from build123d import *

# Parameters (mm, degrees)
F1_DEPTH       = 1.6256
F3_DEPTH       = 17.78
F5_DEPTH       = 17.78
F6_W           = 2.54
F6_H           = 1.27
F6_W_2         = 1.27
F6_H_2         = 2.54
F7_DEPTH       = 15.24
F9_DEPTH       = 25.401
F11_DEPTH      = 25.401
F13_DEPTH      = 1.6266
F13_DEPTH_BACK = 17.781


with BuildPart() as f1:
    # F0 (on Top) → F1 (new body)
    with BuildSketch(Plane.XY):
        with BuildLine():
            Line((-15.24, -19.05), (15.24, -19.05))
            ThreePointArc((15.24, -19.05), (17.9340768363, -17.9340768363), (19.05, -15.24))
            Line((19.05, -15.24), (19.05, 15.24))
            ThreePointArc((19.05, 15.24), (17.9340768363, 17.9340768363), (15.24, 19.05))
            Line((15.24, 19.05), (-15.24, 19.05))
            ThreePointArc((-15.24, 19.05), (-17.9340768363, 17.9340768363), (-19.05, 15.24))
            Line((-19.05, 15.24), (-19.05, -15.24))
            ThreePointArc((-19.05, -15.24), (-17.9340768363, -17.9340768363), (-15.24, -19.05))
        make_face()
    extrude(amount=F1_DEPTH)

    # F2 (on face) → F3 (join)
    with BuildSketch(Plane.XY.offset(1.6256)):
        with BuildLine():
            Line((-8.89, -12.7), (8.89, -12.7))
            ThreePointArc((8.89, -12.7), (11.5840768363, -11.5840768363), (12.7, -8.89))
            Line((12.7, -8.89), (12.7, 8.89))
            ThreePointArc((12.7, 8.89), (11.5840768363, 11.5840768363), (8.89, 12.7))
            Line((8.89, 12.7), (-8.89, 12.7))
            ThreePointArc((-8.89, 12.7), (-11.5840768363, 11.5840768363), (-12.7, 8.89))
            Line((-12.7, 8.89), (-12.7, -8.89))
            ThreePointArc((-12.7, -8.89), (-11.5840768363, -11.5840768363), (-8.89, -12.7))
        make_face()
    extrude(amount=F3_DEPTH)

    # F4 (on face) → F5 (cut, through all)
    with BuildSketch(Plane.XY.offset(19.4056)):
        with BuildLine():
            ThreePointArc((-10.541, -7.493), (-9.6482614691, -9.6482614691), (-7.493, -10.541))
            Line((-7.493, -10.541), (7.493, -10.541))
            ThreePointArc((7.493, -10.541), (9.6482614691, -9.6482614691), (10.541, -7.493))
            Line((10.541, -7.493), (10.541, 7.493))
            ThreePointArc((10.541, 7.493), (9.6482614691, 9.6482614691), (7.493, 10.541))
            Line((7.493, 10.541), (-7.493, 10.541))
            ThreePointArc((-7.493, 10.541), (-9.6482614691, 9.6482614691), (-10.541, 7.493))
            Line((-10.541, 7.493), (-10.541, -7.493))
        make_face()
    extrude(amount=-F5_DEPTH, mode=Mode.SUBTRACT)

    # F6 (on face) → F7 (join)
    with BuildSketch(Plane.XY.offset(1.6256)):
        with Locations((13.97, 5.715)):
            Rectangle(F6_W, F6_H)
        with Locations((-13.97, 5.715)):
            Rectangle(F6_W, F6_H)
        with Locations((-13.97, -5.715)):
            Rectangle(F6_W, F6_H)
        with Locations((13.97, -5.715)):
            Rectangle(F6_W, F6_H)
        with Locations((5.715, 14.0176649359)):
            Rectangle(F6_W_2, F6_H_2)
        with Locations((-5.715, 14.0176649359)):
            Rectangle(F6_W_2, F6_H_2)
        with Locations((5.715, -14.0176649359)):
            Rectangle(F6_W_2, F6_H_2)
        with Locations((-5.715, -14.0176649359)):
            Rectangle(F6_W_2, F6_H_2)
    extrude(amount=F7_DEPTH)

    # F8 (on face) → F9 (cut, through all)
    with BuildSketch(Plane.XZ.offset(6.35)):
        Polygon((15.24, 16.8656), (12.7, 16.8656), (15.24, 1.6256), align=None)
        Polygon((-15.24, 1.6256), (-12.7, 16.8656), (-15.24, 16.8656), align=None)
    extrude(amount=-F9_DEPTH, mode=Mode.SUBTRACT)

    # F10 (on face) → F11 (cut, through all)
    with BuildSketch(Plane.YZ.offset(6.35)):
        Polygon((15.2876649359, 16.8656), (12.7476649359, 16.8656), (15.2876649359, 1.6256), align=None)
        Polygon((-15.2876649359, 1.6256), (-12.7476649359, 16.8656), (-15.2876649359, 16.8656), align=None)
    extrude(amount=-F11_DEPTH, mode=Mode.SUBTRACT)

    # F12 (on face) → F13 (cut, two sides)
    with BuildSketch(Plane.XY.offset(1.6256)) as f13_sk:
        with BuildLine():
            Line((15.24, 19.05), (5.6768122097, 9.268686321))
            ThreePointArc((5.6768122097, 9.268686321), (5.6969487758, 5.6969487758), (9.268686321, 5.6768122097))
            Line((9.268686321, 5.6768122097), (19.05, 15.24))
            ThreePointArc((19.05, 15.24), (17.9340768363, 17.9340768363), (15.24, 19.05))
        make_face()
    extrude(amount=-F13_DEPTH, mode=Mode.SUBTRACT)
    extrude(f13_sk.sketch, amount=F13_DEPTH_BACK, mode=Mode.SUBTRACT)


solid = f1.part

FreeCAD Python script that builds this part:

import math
import FreeCAD as App
import Part
import Sketcher

V = App.Vector
Q = App.Units.Quantity

doc = App.newDocument("Part")
body = doc.addObject("PartDesign::Body", "Body")

# Sketch on XY plane
sketch1 = doc.addObject("Sketcher::SketchObject", "Sketch")
body.addObject(sketch1)
sketch1.AttachmentSupport = (doc.XY_Plane, [""])
sketch1.MapMode = "FlatFace"
sketch1.addGeometry([
    Part.LineSegment(V(-15.2, -19.1, 0), V(15.2, -19.1, 0)),  # 0
    Part.ArcOfCircle(Part.Circle(V(15.2, -15.2, 0), V(0, 0, 1), 3.8), math.radians(-90), math.radians(0)),  # 1
    Part.LineSegment(V(19.1, -15.2, 0), V(19.1, 15.2, 0)),  # 2
    Part.ArcOfCircle(Part.Circle(V(15.2, 15.2, 0), V(0, 0, 1), 3.8), math.radians(0), math.radians(90)),  # 3
    Part.LineSegment(V(15.2, 19.1, 0), V(-15.2, 19.1, 0)),  # 4
    Part.ArcOfCircle(Part.Circle(V(-15.2, 15.2, 0), V(0, 0, 1), 3.8), math.radians(90), math.radians(180)),  # 5
    Part.LineSegment(V(-19.1, 15.2, 0), V(-19.1, -15.2, 0)),  # 6
    Part.ArcOfCircle(Part.Circle(V(-15.2, -15.2, 0), V(0, 0, 1), 3.8), math.radians(180), math.radians(270)),  # 7
], False)
sketch1.addConstraint([
    Sketcher.Constraint("Tangent", 0, 2, 1, 1),
    Sketcher.Constraint("Tangent", 1, 2, 2, 1),
    Sketcher.Constraint("Tangent", 2, 2, 3, 1),
    Sketcher.Constraint("Tangent", 3, 2, 4, 1),
    Sketcher.Constraint("Tangent", 4, 2, 5, 1),
    Sketcher.Constraint("Tangent", 5, 2, 6, 1),
    Sketcher.Constraint("Tangent", 6, 2, 7, 1),
    Sketcher.Constraint("Tangent", 7, 2, 0, 1),
    Sketcher.Constraint("Horizontal", 0),
    Sketcher.Constraint("Vertical", 2),
    Sketcher.Constraint("Horizontal", 4),
    Sketcher.Constraint("Vertical", 6),
    Sketcher.Constraint("Equal", 1, 3),
    Sketcher.Constraint("Equal", 3, 5),
    Sketcher.Constraint("Equal", 5, 7),
    Sketcher.Constraint("Symmetric", 1, 3, 5, 3, -1, 1),
    Sketcher.Constraint("Equal", 4, 2),
    Sketcher.Constraint("Radius", 1, Q("0.15 in")),
    Sketcher.Constraint("DistanceX", 0, 1, 0, 2, Q("1.2 in")),
])
pad1 = doc.addObject("PartDesign::Pad", "Pad")
body.addObject(pad1)
pad1.Profile = sketch1
pad1.Length = Q("0.064 in")

# Sketch on XY plane
sketch2 = doc.addObject("Sketcher::SketchObject", "Sketch001")
body.addObject(sketch2)
sketch2.AttachmentSupport = (doc.XY_Plane, [""])
sketch2.MapMode = "FlatFace"
sketch2.AttachmentOffset = App.Placement(V(0, 0, 0.064 * 25.4), App.Rotation())
sketch2.addGeometry([
    Part.LineSegment(V(-8.9, -12.7, 0), V(8.9, -12.7, 0)),  # 0
    Part.ArcOfCircle(Part.Circle(V(8.9, -8.9, 0), V(0, 0, 1), 3.8), math.radians(-90), math.radians(0)),  # 1
    Part.LineSegment(V(12.7, -8.9, 0), V(12.7, 8.9, 0)),  # 2
    Part.ArcOfCircle(Part.Circle(V(8.9, 8.9, 0), V(0, 0, 1), 3.8), math.radians(0), math.radians(90)),  # 3
    Part.LineSegment(V(8.9, 12.7, 0), V(-8.9, 12.7, 0)),  # 4
    Part.ArcOfCircle(Part.Circle(V(-8.9, 8.9, 0), V(0, 0, 1), 3.8), math.radians(90), math.radians(180)),  # 5
    Part.LineSegment(V(-12.7, 8.9, 0), V(-12.7, -8.9, 0)),  # 6
    Part.ArcOfCircle(Part.Circle(V(-8.9, -8.9, 0), V(0, 0, 1), 3.8), math.radians(180), math.radians(270)),  # 7
], False)
sketch2.addConstraint([
    Sketcher.Constraint("Tangent", 0, 2, 1, 1),
    Sketcher.Constraint("Tangent", 1, 2, 2, 1),
    Sketcher.Constraint("Tangent", 2, 2, 3, 1),
    Sketcher.Constraint("Tangent", 3, 2, 4, 1),
    Sketcher.Constraint("Tangent", 4, 2, 5, 1),
    Sketcher.Constraint("Tangent", 5, 2, 6, 1),
    Sketcher.Constraint("Tangent", 6, 2, 7, 1),
    Sketcher.Constraint("Tangent", 7, 2, 0, 1),
    Sketcher.Constraint("Horizontal", 0),
    Sketcher.Constraint("Vertical", 2),
    Sketcher.Constraint("Horizontal", 4),
    Sketcher.Constraint("Vertical", 6),
    Sketcher.Constraint("Equal", 1, 3),
    Sketcher.Constraint("Equal", 3, 5),
    Sketcher.Constraint("Equal", 5, 7),
    Sketcher.Constraint("Symmetric", 1, 3, 5, 3, -1, 1),
    Sketcher.Constraint("Equal", 4, 2),
    Sketcher.Constraint("Radius", 1, Q("0.15 in")),
    Sketcher.Constraint("DistanceX", 0, 1, 0, 2, Q("0.7 in")),
])
pad2 = doc.addObject("PartDesign::Pad", "Pad001")
body.addObject(pad2)
pad2.Profile = sketch2
pad2.Length = Q("0.7 in")

# Sketch on XY plane
sketch3 = doc.addObject("Sketcher::SketchObject", "Sketch002")
body.addObject(sketch3)
sketch3.AttachmentSupport = (doc.XY_Plane, [""])
sketch3.MapMode = "FlatFace"
sketch3.AttachmentOffset = App.Placement(V(0, 0, 0.764 * 25.4), App.Rotation())
sketch3.addGeometry([
    Part.ArcOfCircle(Part.Circle(V(-7.5, -7.5, 0), V(0, 0, 1), 3), math.radians(180), math.radians(270)),  # 0
    Part.LineSegment(V(-7.5, -10.5, 0), V(7.5, -10.5, 0)),  # 1
    Part.ArcOfCircle(Part.Circle(V(7.5, -7.5, 0), V(0, 0, 1), 3), math.radians(-90), math.radians(0)),  # 2
    Part.LineSegment(V(10.5, -7.5, 0), V(10.5, 7.5, 0)),  # 3
    Part.ArcOfCircle(Part.Circle(V(7.5, 7.5, 0), V(0, 0, 1), 3), math.radians(0), math.radians(90)),  # 4
    Part.LineSegment(V(7.5, 10.5, 0), V(-7.5, 10.5, 0)),  # 5
    Part.ArcOfCircle(Part.Circle(V(-7.5, 7.5, 0), V(0, 0, 1), 3), math.radians(90), math.radians(180)),  # 6
    Part.LineSegment(V(-10.5, 7.5, 0), V(-10.5, -7.5, 0)),  # 7
], False)
sketch3.addConstraint([
    Sketcher.Constraint("Tangent", 0, 2, 1, 1),
    Sketcher.Constraint("Tangent", 1, 2, 2, 1),
    Sketcher.Constraint("Tangent", 2, 2, 3, 1),
    Sketcher.Constraint("Tangent", 3, 2, 4, 1),
    Sketcher.Constraint("Tangent", 4, 2, 5, 1),
    Sketcher.Constraint("Tangent", 5, 2, 6, 1),
    Sketcher.Constraint("Tangent", 6, 2, 7, 1),
    Sketcher.Constraint("Tangent", 7, 2, 0, 1),
    Sketcher.Constraint("Horizontal", 1),
    Sketcher.Constraint("Vertical", 3),
    Sketcher.Constraint("Horizontal", 5),
    Sketcher.Constraint("Vertical", 7),
    Sketcher.Constraint("Equal", 0, 2),
    Sketcher.Constraint("Equal", 2, 4),
    Sketcher.Constraint("Equal", 4, 6),
    Sketcher.Constraint("Symmetric", 0, 3, 4, 3, -1, 1),
    Sketcher.Constraint("Equal", 5, 3),
    Sketcher.Constraint("Radius", 0, Q("0.12 in")),
    Sketcher.Constraint("DistanceX", 1, 1, 1, 2, Q("0.59 in")),
])
pocket1 = doc.addObject("PartDesign::Pocket", "Pocket")
body.addObject(pocket1)
pocket1.Profile = sketch3
pocket1.Length = Q("0.7 in")

# Sketch on XY plane
sketch4 = doc.addObject("Sketcher::SketchObject", "Sketch003")
body.addObject(sketch4)
sketch4.AttachmentSupport = (doc.XY_Plane, [""])
sketch4.MapMode = "FlatFace"
sketch4.AttachmentOffset = App.Placement(V(0, 0, 0.064 * 25.4), App.Rotation())
sketch4.addGeometry([
    Part.LineSegment(V(12.7, 6.3, 0), V(12.7, 5.1, 0)),  # 0
    Part.LineSegment(V(12.7, 5.1, 0), V(15.2, 5.1, 0)),  # 1
    Part.LineSegment(V(15.2, 5.1, 0), V(15.2, 6.3, 0)),  # 2
    Part.LineSegment(V(15.2, 6.3, 0), V(12.7, 6.3, 0)),  # 3
    Part.LineSegment(V(-15.2, 6.3, 0), V(-15.2, 5.1, 0)),  # 4
    Part.LineSegment(V(-15.2, 5.1, 0), V(-12.7, 5.1, 0)),  # 5
    Part.LineSegment(V(-12.7, 5.1, 0), V(-12.7, 6.3, 0)),  # 6
    Part.LineSegment(V(-12.7, 6.3, 0), V(-15.2, 6.3, 0)),  # 7
    Part.LineSegment(V(-15.2, -5.1, 0), V(-15.2, -6.3, 0)),  # 8
    Part.LineSegment(V(-15.2, -6.3, 0), V(-12.7, -6.3, 0)),  # 9
    Part.LineSegment(V(-12.7, -6.3, 0), V(-12.7, -5.1, 0)),  # 10
    Part.LineSegment(V(-12.7, -5.1, 0), V(-15.2, -5.1, 0)),  # 11
    Part.LineSegment(V(12.7, -5.1, 0), V(12.7, -6.3, 0)),  # 12
    Part.LineSegment(V(12.7, -6.3, 0), V(15.2, -6.3, 0)),  # 13
    Part.LineSegment(V(15.2, -6.3, 0), V(15.2, -5.1, 0)),  # 14
    Part.LineSegment(V(15.2, -5.1, 0), V(12.7, -5.1, 0)),  # 15
    Part.LineSegment(V(5.1, 15.3, 0), V(5.1, 12.7, 0)),  # 16
    Part.LineSegment(V(5.1, 12.7, 0), V(6.3, 12.7, 0)),  # 17
    Part.LineSegment(V(6.3, 12.7, 0), V(6.3, 15.3, 0)),  # 18
    Part.LineSegment(V(6.3, 15.3, 0), V(5.1, 15.3, 0)),  # 19
    Part.LineSegment(V(-6.3, 15.3, 0), V(-6.3, 12.7, 0)),  # 20
    Part.LineSegment(V(-6.3, 12.7, 0), V(-5.1, 12.7, 0)),  # 21
    Part.LineSegment(V(-5.1, 12.7, 0), V(-5.1, 15.3, 0)),  # 22
    Part.LineSegment(V(-5.1, 15.3, 0), V(-6.3, 15.3, 0)),  # 23
    Part.LineSegment(V(5.1, -12.7, 0), V(5.1, -15.3, 0)),  # 24
    Part.LineSegment(V(5.1, -15.3, 0), V(6.3, -15.3, 0)),  # 25
    Part.LineSegment(V(6.3, -15.3, 0), V(6.3, -12.7, 0)),  # 26
    Part.LineSegment(V(6.3, -12.7, 0), V(5.1, -12.7, 0)),  # 27
    Part.LineSegment(V(-6.3, -12.7, 0), V(-6.3, -15.3, 0)),  # 28
    Part.LineSegment(V(-6.3, -15.3, 0), V(-5.1, -15.3, 0)),  # 29
    Part.LineSegment(V(-5.1, -15.3, 0), V(-5.1, -12.7, 0)),  # 30
    Part.LineSegment(V(-5.1, -12.7, 0), V(-6.3, -12.7, 0)),  # 31
], False)
sketch4.addConstraint([
    Sketcher.Constraint("Coincident", 0, 2, 1, 1),
    Sketcher.Constraint("Coincident", 1, 2, 2, 1),
    Sketcher.Constraint("Coincident", 2, 2, 3, 1),
    Sketcher.Constraint("Coincident", 3, 2, 0, 1),
    Sketcher.Constraint("Coincident", 4, 2, 5, 1),
    Sketcher.Constraint("Coincident", 5, 2, 6, 1),
    Sketcher.Constraint("Coincident", 6, 2, 7, 1),
    Sketcher.Constraint("Coincident", 7, 2, 4, 1),
    Sketcher.Constraint("Coincident", 8, 2, 9, 1),
    Sketcher.Constraint("Coincident", 9, 2, 10, 1),
    Sketcher.Constraint("Coincident", 10, 2, 11, 1),
    Sketcher.Constraint("Coincident", 11, 2, 8, 1),
    Sketcher.Constraint("Coincident", 12, 2, 13, 1),
    Sketcher.Constraint("Coincident", 13, 2, 14, 1),
    Sketcher.Constraint("Coincident", 14, 2, 15, 1),
    Sketcher.Constraint("Coincident", 15, 2, 12, 1),
    Sketcher.Constraint("Coincident", 16, 2, 17, 1),
    Sketcher.Constraint("Coincident", 17, 2, 18, 1),
    Sketcher.Constraint("Coincident", 18, 2, 19, 1),
    Sketcher.Constraint("Coincident", 19, 2, 16, 1),
    Sketcher.Constraint("Coincident", 20, 2, 21, 1),
    Sketcher.Constraint("Coincident", 21, 2, 22, 1),
    Sketcher.Constraint("Coincident", 22, 2, 23, 1),
    Sketcher.Constraint("Coincident", 23, 2, 20, 1),
    Sketcher.Constraint("Coincident", 24, 2, 25, 1),
    Sketcher.Constraint("Coincident", 25, 2, 26, 1),
    Sketcher.Constraint("Coincident", 26, 2, 27, 1),
    Sketcher.Constraint("Coincident", 27, 2, 24, 1),
    Sketcher.Constraint("Coincident", 28, 2, 29, 1),
    Sketcher.Constraint("Coincident", 29, 2, 30, 1),
    Sketcher.Constraint("Coincident", 30, 2, 31, 1),
    Sketcher.Constraint("Coincident", 31, 2, 28, 1),
    Sketcher.Constraint("Vertical", 0),
    Sketcher.Constraint("Horizontal", 1),
    Sketcher.Constraint("Vertical", 2),
    Sketcher.Constraint("Horizontal", 3),
    Sketcher.Constraint("Vertical", 4),
    Sketcher.Constraint("Horizontal", 5),
    Sketcher.Constraint("Vertical", 6),
    Sketcher.Constraint("Horizontal", 7),
    Sketcher.Constraint("Vertical", 8),
    Sketcher.Constraint("Horizontal", 9),
    Sketcher.Constraint("Vertical", 10),
    Sketcher.Constraint("Horizontal", 11),
    Sketcher.Constraint("Vertical", 12),
    Sketcher.Constraint("Horizontal", 13),
    Sketcher.Constraint("Vertical", 14),
    Sketcher.Constraint("Horizontal", 15),
    Sketcher.Constraint("Vertical", 16),
    Sketcher.Constraint("Horizontal", 17),
    Sketcher.Constraint("Vertical", 18),
    Sketcher.Constraint("Horizontal", 19),
    Sketcher.Constraint("Vertical", 20),
    Sketcher.Constraint("Horizontal", 21),
    Sketcher.Constraint("Vertical", 22),
    Sketcher.Constraint("Horizontal", 23),
    Sketcher.Constraint("Vertical", 24),
    Sketcher.Constraint("Horizontal", 25),
    Sketcher.Constraint("Vertical", 26),
    Sketcher.Constraint("Horizontal", 27),
    Sketcher.Constraint("Vertical", 28),
    Sketcher.Constraint("Horizontal", 29),
    Sketcher.Constraint("Vertical", 30),
    Sketcher.Constraint("Horizontal", 31),
    Sketcher.Constraint("Symmetric", 2, 2, 8, 2, -1, 1),
    Sketcher.Constraint("Symmetric", 0, 2, 10, 2, -1, 1),
    Sketcher.Constraint("Symmetric", 6, 2, 12, 2, -1, 1),
    Sketcher.Constraint("Symmetric", 4, 2, 14, 2, -1, 1),
    Sketcher.Constraint("Symmetric", 22, 2, 24, 2, -1, 1),
    Sketcher.Constraint("Symmetric", 20, 2, 26, 2, -1, 1),
    Sketcher.Constraint("Symmetric", 18, 2, 28, 2, -1, 1),
    Sketcher.Constraint("Symmetric", 16, 2, 30, 2, -1, 1),
    Sketcher.Constraint("Symmetric", 1, 2, 4, 2, -2),
    Sketcher.Constraint("Symmetric", 3, 2, 6, 2, -2),
    Sketcher.Constraint("Symmetric", 17, 2, 20, 2, -2),
    Sketcher.Constraint("Symmetric", 19, 2, 22, 2, -2),
    Sketcher.Constraint("Equal", 31, 0),
    Sketcher.Constraint("Equal", 15, 16),
    Sketcher.Constraint("DistanceX", 1, 1, 1, 2, Q("0.1 in")),
    Sketcher.Constraint("DistanceX", 5, 2, 0, 2, Q("1 in")),
    Sketcher.Constraint("DistanceX", 17, 1, 17, 2, Q("0.05 in")),
    Sketcher.Constraint("DistanceY", -1, 1, 0, 2, Q("0.2 in")),
    Sketcher.Constraint("DistanceX", -1, 1, 16, 2, Q("0.2 in")),
    Sketcher.Constraint("DistanceY", -1, 1, 16, 2, Q("12.747665 mm")),
])
pad3 = doc.addObject("PartDesign::Pad", "Pad002")
body.addObject(pad3)
pad3.Profile = sketch4
pad3.Length = Q("0.6 in")

# Sketch on XZ plane
sketch5 = doc.addObject("Sketcher::SketchObject", "Sketch004")
body.addObject(sketch5)
sketch5.AttachmentSupport = (doc.XZ_Plane, [""])
sketch5.MapMode = "FlatFace"
sketch5.AttachmentOffset = App.Placement(V(0, 0, 0.25 * 25.4), App.Rotation())
sketch5.addGeometry([
    Part.LineSegment(V(15.2, 16.9, 0), V(12.7, 16.9, 0)),  # 0
    Part.LineSegment(V(12.7, 16.9, 0), V(15.2, 1.6, 0)),  # 1
    Part.LineSegment(V(15.2, 1.6, 0), V(15.2, 16.9, 0)),  # 2
    Part.LineSegment(V(-15.2, 1.6, 0), V(-12.7, 16.9, 0)),  # 3
    Part.LineSegment(V(-12.7, 16.9, 0), V(-15.2, 16.9, 0)),  # 4
    Part.LineSegment(V(-15.2, 16.9, 0), V(-15.2, 1.6, 0)),  # 5
], False)
sketch5.addConstraint([
    Sketcher.Constraint("Coincident", 0, 2, 1, 1),
    Sketcher.Constraint("Coincident", 1, 2, 2, 1),
    Sketcher.Constraint("Coincident", 2, 2, 0, 1),
    Sketcher.Constraint("Coincident", 3, 2, 4, 1),
    Sketcher.Constraint("Coincident", 4, 2, 5, 1),
    Sketcher.Constraint("Coincident", 5, 2, 3, 1),
    Sketcher.Constraint("Horizontal", 0),
    Sketcher.Constraint("Vertical", 2),
    Sketcher.Constraint("Horizontal", 4),
    Sketcher.Constraint("Vertical", 5),
    Sketcher.Constraint("Symmetric", 0, 2, 3, 2, -2),
    Sketcher.Constraint("Symmetric", 1, 2, 5, 2, -2),
    Sketcher.Constraint("DistanceX", 0, 2, 0, 1, Q("0.1 in")),
    Sketcher.Constraint("DistanceY", 2, 1, 2, 2, Q("0.6 in")),
    Sketcher.Constraint("DistanceX", 3, 2, 0, 2, Q("1 in")),
    Sketcher.Constraint("DistanceY", -1, 1, 0, 2, Q("0.664 in")),
])
pocket2 = doc.addObject("PartDesign::Pocket", "Pocket001")
body.addObject(pocket2)
pocket2.Profile = sketch5
pocket2.Type = "ThroughAll"

# Sketch on YZ plane
sketch6 = doc.addObject("Sketcher::SketchObject", "Sketch005")
body.addObject(sketch6)
sketch6.AttachmentSupport = (doc.YZ_Plane, [""])
sketch6.MapMode = "FlatFace"
sketch6.AttachmentOffset = App.Placement(V(0, 0, 0.25 * 25.4), App.Rotation())
sketch6.addGeometry([
    Part.LineSegment(V(15.3, 16.9, 0), V(12.7, 16.9, 0)),  # 0
    Part.LineSegment(V(12.7, 16.9, 0), V(15.3, 1.6, 0)),  # 1
    Part.LineSegment(V(15.3, 1.6, 0), V(15.3, 16.9, 0)),  # 2
    Part.LineSegment(V(-15.3, 1.6, 0), V(-12.7, 16.9, 0)),  # 3
    Part.LineSegment(V(-12.7, 16.9, 0), V(-15.3, 16.9, 0)),  # 4
    Part.LineSegment(V(-15.3, 16.9, 0), V(-15.3, 1.6, 0)),  # 5
], False)
sketch6.addConstraint([
    Sketcher.Constraint("Coincident", 0, 2, 1, 1),
    Sketcher.Constraint("Coincident", 1, 2, 2, 1),
    Sketcher.Constraint("Coincident", 2, 2, 0, 1),
    Sketcher.Constraint("Coincident", 3, 2, 4, 1),
    Sketcher.Constraint("Coincident", 4, 2, 5, 1),
    Sketcher.Constraint("Coincident", 5, 2, 3, 1),
    Sketcher.Constraint("Horizontal", 0),
    Sketcher.Constraint("Vertical", 2),
    Sketcher.Constraint("Horizontal", 4),
    Sketcher.Constraint("Vertical", 5),
    Sketcher.Constraint("Symmetric", 0, 2, 3, 2, -2),
    Sketcher.Constraint("Symmetric", 1, 2, 5, 2, -2),
    Sketcher.Constraint("DistanceX", 0, 2, 0, 1, Q("0.1 in")),
    Sketcher.Constraint("DistanceY", 2, 1, 2, 2, Q("0.6 in")),
    Sketcher.Constraint("DistanceY", -1, 1, 0, 2, Q("0.664 in")),
    Sketcher.Constraint("DistanceX", 3, 2, 0, 2, Q("25.49533 mm")),
])
pocket3 = doc.addObject("PartDesign::Pocket", "Pocket002")
body.addObject(pocket3)
pocket3.Profile = sketch6
pocket3.Type = "ThroughAll"

# Sketch on XY plane
sketch7 = doc.addObject("Sketcher::SketchObject", "Sketch006")
body.addObject(sketch7)
sketch7.AttachmentSupport = (doc.XY_Plane, [""])
sketch7.MapMode = "FlatFace"
sketch7.AttachmentOffset = App.Placement(V(0, 0, 0.064 * 25.4), App.Rotation())
sketch7.addGeometry([
    Part.LineSegment(V(15.2, 19.1, 0), V(5.7, 9.3, 0)),
    Part.ArcOfCircle(Part.Circle(V(7.5, 7.5, 0), V(0, 0, 1), 2.5), math.radians(136), math.radians(314)),
    Part.LineSegment(V(9.3, 5.7, 0), V(19.1, 15.2, 0)),
    Part.ArcOfCircle(Part.Circle(V(15.2, 15.2, 0), V(0, 0, 1), 3.8), math.radians(0), math.radians(90)),
], False)
sketch7.addConstraint([
    Sketcher.Constraint("Tangent", 0, 2, 1, 1),
    Sketcher.Constraint("Tangent", 1, 2, 2, 1),
    Sketcher.Constraint("Coincident", 2, 2, 3, 1),
    Sketcher.Constraint("Coincident", 3, 2, 0, 1),
    Sketcher.Constraint("Horizontal", 3, 3, 2, 2),
    Sketcher.Constraint("Equal", 0, 2),
    Sketcher.Constraint("Radius", 1, Q("0.1 in")),
    Sketcher.Constraint("Radius", 3, Q("0.15 in")),
    Sketcher.Constraint("DistanceX", -1, 1, 3, 3, Q("0.6 in")),
    Sketcher.Constraint("DistanceY", -1, 1, 3, 3, Q("0.6 in")),
    Sketcher.Constraint("DistanceX", -1, 1, 3, 2, Q("0.6 in")),
    Sketcher.Constraint("DistanceX", -1, 1, 1, 3, Q("0.295 in")),
])
pocket4 = doc.addObject("PartDesign::Pocket", "Pocket003")
body.addObject(pocket4)
pocket4.Profile = sketch7
pocket4.Type = "ThroughAll"
pocket4.Midplane = True

doc.recompute()
